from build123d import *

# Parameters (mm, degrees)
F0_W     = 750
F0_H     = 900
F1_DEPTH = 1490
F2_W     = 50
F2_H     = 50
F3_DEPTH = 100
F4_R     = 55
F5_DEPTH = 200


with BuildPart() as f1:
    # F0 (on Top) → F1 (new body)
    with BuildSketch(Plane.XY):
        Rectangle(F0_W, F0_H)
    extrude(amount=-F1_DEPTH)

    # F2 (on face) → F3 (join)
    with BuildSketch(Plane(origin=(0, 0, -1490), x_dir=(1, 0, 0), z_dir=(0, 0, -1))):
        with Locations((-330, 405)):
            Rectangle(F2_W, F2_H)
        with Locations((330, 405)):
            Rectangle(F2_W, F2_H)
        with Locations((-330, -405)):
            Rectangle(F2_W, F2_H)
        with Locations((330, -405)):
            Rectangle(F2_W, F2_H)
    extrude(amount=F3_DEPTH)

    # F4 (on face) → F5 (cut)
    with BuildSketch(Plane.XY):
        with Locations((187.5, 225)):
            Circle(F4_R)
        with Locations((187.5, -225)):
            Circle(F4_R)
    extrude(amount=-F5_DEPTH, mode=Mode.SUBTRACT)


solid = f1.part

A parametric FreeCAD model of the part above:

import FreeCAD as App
import Part
import Sketcher

V = App.Vector
Q = App.Units.Quantity

doc = App.newDocument("Part")
body = doc.addObject("PartDesign::Body", "Body")

sketch1 = body.newObject("Sketcher::SketchObject", "Sketch")
sketch1.AttachmentSupport = (doc.getObject("XY_Plane"), [""])
sketch1.MapMode = "FlatFace"
sketch1.addGeometry([
    Part.LineSegment(V(-375, 450, 0), V(-375, -450, 0)),
    Part.LineSegment(V(-375, -450, 0), V(375, -450, 0)),
    Part.LineSegment(V(375, -450, 0), V(375, 450, 0)),
    Part.LineSegment(V(375, 450, 0), V(-375, 450, 0)),
], False)
sketch1.addConstraint([
    Sketcher.Constraint("Coincident", 0, 2, 1, 1),
    Sketcher.Constraint("Coincident", 1, 2, 2, 1),
    Sketcher.Constraint("Coincident", 2, 2, 3, 1),
    Sketcher.Constraint("Coincident", 3, 2, 0, 1),
    Sketcher.Constraint("Vertical", 0),
    Sketcher.Constraint("Horizontal", 1),
    Sketcher.Constraint("Vertical", 2),
    Sketcher.Constraint("Horizontal", 3),
    Sketcher.Constraint("Symmetric", 0, 2, 2, 2, -1, 1),
    Sketcher.Constraint("DistanceX", 1, 1, 1, 2, Q("750 mm")),
    Sketcher.Constraint("DistanceY", 0, 2, 0, 1, Q("900 mm")),
])
pad1 = body.newObject("PartDesign::Pad", "Pad")
pad1.Profile = sketch1
pad1.Length = 1490
pad1.Reversed = True

sketch2 = body.newObject("Sketcher::SketchObject", "Sketch001")
sketch2.AttachmentSupport = (doc.getObject("XY_Plane"), [""])
sketch2.MapMode = "FlatFace"
sketch2.AttachmentOffset = App.Placement(V(0, 0, -1490), App.Rotation())
sketch2.addGeometry([
    Part.LineSegment(V(-355, -430, 0), V(-355, -380, 0)),
    Part.LineSegment(V(-355, -380, 0), V(-305, -380, 0)),
    Part.LineSegment(V(-305, -380, 0), V(-305, -430, 0)),
    Part.LineSegment(V(-305, -430, 0), V(-355, -430, 0)),
    Part.LineSegment(V(305, -430, 0), V(305, -380, 0)),
    Part.LineSegment(V(305, -380, 0), V(355, -380, 0)),
    Part.LineSegment(V(355, -380, 0), V(355, -430, 0)),
    Part.LineSegment(V(355, -430, 0), V(305, -430, 0)),
    Part.LineSegment(V(-355, 380, 0), V(-355, 430, 0)),
    Part.LineSegment(V(-355, 430, 0), V(-305, 430, 0)),
    Part.LineSegment(V(-305, 430, 0), V(-305, 380, 0)),
    Part.LineSegment(V(-305, 380, 0), V(-355, 380, 0)),
    Part.LineSegment(V(305, 380, 0), V(305, 430, 0)),
    Part.LineSegment(V(305, 430, 0), V(355, 430, 0)),
    Part.LineSegment(V(355, 430, 0), V(355, 380, 0)),
    Part.LineSegment(V(355, 380, 0), V(305, 380, 0)),
], False)
sketch2.addConstraint([
    Sketcher.Constraint("Coincident", 0, 2, 1, 1),
    Sketcher.Constraint("Coincident", 1, 2, 2, 1),
    Sketcher.Constraint("Coincident", 2, 2, 3, 1),
    Sketcher.Constraint("Coincident", 3, 2, 0, 1),
    Sketcher.Constraint("Coincident", 4, 2, 5, 1),
    Sketcher.Constraint("Coincident", 5, 2, 6, 1),
    Sketcher.Constraint("Coincident", 6, 2, 7, 1),
    Sketcher.Constraint("Coincident", 7, 2, 4, 1),
    Sketcher.Constraint("Coincident", 8, 2, 9, 1),
    Sketcher.Constraint("Coincident", 9, 2, 10, 1),
    Sketcher.Constraint("Coincident", 10, 2, 11, 1),
    Sketcher.Constraint("Coincident", 11, 2, 8, 1),
    Sketcher.Constraint("Coincident", 12, 2, 13, 1),
    Sketcher.Constraint("Coincident", 13, 2, 14, 1),
    Sketcher.Constraint("Coincident", 14, 2, 15, 1),
    Sketcher.Constraint("Coincident", 15, 2, 12, 1),
    Sketcher.Constraint("Vertical", 0),
    Sketcher.Constraint("Horizontal", 1),
    Sketcher.Constraint("Vertical", 2),
    Sketcher.Constraint("Horizontal", 3),
    Sketcher.Constraint("Vertical", 4),
    Sketcher.Constraint("Horizontal", 5),
    Sketcher.Constraint("Vertical", 6),
    Sketcher.Constraint("Horizontal", 7),
    Sketcher.Constraint("Vertical", 8),
    Sketcher.Constraint("Horizontal", 9),
    Sketcher.Constraint("Vertical", 10),
    Sketcher.Constraint("Horizontal", 11),
    Sketcher.Constraint("Vertical", 12),
    Sketcher.Constraint("Horizontal", 13),
    Sketcher.Constraint("Vertical", 14),
    Sketcher.Constraint("Horizontal", 15),
    Sketcher.Constraint("Symmetric", 6, 2, 8, 2, -1, 1),
    Sketcher.Constraint("Symmetric", 4, 2, 10, 2, -1, 1),
    Sketcher.Constraint("Symmetric", 2, 2, 12, 2, -1, 1),
    Sketcher.Constraint("Symmetric", 0, 2, 14, 2, -1, 1),
    Sketcher.Constraint("Symmetric", 1, 2, 4, 2, -2),
    Sketcher.Constraint("Symmetric", 3, 2, 6, 2, -2),
    Sketcher.Constraint("Equal", 15, 0),
    Sketcher.Constraint("DistanceX", 1, 1, 1, 2, Q("50 mm")),
    Sketcher.Constraint("DistanceX", 0, 2, -1, 1, Q("355 mm")),
    Sketcher.Constraint("DistanceY", 0, 2, -1, 1, Q("380 mm")),
])
pad2 = body.newObject("PartDesign::Pad", "Pad001")
pad2.Profile = sketch2
pad2.Length = 100
pad2.Reversed = True

sketch3 = body.newObject("Sketcher::SketchObject", "Sketch002")
sketch3.AttachmentSupport = (doc.getObject("XY_Plane"), [""])
sketch3.MapMode = "FlatFace"
sketch3.addGeometry([
    Part.Circle(V(188, 225, 0), V(0, 0, 1), 55),
    Part.Circle(V(188, -225, 0), V(0, 0, 1), 55),
], False)
sketch3.addConstraint([
    Sketcher.Constraint("Equal", 0, 1),
    Sketcher.Constraint("Symmetric", 0, 3, 1, 3, -1),
    Sketcher.Constraint("Diameter", 0, Q("110 mm")),
    Sketcher.Constraint("DistanceY", -1, 1, 0, 3, Q("225 mm")),
    Sketcher.Constraint("DistanceX", -1, 1, 0, 3, Q("187.5 mm")),
])
pocket1 = body.newObject("PartDesign::Pocket", "Pocket")
pocket1.Profile = sketch3
pocket1.Length = 200

doc.recompute()
